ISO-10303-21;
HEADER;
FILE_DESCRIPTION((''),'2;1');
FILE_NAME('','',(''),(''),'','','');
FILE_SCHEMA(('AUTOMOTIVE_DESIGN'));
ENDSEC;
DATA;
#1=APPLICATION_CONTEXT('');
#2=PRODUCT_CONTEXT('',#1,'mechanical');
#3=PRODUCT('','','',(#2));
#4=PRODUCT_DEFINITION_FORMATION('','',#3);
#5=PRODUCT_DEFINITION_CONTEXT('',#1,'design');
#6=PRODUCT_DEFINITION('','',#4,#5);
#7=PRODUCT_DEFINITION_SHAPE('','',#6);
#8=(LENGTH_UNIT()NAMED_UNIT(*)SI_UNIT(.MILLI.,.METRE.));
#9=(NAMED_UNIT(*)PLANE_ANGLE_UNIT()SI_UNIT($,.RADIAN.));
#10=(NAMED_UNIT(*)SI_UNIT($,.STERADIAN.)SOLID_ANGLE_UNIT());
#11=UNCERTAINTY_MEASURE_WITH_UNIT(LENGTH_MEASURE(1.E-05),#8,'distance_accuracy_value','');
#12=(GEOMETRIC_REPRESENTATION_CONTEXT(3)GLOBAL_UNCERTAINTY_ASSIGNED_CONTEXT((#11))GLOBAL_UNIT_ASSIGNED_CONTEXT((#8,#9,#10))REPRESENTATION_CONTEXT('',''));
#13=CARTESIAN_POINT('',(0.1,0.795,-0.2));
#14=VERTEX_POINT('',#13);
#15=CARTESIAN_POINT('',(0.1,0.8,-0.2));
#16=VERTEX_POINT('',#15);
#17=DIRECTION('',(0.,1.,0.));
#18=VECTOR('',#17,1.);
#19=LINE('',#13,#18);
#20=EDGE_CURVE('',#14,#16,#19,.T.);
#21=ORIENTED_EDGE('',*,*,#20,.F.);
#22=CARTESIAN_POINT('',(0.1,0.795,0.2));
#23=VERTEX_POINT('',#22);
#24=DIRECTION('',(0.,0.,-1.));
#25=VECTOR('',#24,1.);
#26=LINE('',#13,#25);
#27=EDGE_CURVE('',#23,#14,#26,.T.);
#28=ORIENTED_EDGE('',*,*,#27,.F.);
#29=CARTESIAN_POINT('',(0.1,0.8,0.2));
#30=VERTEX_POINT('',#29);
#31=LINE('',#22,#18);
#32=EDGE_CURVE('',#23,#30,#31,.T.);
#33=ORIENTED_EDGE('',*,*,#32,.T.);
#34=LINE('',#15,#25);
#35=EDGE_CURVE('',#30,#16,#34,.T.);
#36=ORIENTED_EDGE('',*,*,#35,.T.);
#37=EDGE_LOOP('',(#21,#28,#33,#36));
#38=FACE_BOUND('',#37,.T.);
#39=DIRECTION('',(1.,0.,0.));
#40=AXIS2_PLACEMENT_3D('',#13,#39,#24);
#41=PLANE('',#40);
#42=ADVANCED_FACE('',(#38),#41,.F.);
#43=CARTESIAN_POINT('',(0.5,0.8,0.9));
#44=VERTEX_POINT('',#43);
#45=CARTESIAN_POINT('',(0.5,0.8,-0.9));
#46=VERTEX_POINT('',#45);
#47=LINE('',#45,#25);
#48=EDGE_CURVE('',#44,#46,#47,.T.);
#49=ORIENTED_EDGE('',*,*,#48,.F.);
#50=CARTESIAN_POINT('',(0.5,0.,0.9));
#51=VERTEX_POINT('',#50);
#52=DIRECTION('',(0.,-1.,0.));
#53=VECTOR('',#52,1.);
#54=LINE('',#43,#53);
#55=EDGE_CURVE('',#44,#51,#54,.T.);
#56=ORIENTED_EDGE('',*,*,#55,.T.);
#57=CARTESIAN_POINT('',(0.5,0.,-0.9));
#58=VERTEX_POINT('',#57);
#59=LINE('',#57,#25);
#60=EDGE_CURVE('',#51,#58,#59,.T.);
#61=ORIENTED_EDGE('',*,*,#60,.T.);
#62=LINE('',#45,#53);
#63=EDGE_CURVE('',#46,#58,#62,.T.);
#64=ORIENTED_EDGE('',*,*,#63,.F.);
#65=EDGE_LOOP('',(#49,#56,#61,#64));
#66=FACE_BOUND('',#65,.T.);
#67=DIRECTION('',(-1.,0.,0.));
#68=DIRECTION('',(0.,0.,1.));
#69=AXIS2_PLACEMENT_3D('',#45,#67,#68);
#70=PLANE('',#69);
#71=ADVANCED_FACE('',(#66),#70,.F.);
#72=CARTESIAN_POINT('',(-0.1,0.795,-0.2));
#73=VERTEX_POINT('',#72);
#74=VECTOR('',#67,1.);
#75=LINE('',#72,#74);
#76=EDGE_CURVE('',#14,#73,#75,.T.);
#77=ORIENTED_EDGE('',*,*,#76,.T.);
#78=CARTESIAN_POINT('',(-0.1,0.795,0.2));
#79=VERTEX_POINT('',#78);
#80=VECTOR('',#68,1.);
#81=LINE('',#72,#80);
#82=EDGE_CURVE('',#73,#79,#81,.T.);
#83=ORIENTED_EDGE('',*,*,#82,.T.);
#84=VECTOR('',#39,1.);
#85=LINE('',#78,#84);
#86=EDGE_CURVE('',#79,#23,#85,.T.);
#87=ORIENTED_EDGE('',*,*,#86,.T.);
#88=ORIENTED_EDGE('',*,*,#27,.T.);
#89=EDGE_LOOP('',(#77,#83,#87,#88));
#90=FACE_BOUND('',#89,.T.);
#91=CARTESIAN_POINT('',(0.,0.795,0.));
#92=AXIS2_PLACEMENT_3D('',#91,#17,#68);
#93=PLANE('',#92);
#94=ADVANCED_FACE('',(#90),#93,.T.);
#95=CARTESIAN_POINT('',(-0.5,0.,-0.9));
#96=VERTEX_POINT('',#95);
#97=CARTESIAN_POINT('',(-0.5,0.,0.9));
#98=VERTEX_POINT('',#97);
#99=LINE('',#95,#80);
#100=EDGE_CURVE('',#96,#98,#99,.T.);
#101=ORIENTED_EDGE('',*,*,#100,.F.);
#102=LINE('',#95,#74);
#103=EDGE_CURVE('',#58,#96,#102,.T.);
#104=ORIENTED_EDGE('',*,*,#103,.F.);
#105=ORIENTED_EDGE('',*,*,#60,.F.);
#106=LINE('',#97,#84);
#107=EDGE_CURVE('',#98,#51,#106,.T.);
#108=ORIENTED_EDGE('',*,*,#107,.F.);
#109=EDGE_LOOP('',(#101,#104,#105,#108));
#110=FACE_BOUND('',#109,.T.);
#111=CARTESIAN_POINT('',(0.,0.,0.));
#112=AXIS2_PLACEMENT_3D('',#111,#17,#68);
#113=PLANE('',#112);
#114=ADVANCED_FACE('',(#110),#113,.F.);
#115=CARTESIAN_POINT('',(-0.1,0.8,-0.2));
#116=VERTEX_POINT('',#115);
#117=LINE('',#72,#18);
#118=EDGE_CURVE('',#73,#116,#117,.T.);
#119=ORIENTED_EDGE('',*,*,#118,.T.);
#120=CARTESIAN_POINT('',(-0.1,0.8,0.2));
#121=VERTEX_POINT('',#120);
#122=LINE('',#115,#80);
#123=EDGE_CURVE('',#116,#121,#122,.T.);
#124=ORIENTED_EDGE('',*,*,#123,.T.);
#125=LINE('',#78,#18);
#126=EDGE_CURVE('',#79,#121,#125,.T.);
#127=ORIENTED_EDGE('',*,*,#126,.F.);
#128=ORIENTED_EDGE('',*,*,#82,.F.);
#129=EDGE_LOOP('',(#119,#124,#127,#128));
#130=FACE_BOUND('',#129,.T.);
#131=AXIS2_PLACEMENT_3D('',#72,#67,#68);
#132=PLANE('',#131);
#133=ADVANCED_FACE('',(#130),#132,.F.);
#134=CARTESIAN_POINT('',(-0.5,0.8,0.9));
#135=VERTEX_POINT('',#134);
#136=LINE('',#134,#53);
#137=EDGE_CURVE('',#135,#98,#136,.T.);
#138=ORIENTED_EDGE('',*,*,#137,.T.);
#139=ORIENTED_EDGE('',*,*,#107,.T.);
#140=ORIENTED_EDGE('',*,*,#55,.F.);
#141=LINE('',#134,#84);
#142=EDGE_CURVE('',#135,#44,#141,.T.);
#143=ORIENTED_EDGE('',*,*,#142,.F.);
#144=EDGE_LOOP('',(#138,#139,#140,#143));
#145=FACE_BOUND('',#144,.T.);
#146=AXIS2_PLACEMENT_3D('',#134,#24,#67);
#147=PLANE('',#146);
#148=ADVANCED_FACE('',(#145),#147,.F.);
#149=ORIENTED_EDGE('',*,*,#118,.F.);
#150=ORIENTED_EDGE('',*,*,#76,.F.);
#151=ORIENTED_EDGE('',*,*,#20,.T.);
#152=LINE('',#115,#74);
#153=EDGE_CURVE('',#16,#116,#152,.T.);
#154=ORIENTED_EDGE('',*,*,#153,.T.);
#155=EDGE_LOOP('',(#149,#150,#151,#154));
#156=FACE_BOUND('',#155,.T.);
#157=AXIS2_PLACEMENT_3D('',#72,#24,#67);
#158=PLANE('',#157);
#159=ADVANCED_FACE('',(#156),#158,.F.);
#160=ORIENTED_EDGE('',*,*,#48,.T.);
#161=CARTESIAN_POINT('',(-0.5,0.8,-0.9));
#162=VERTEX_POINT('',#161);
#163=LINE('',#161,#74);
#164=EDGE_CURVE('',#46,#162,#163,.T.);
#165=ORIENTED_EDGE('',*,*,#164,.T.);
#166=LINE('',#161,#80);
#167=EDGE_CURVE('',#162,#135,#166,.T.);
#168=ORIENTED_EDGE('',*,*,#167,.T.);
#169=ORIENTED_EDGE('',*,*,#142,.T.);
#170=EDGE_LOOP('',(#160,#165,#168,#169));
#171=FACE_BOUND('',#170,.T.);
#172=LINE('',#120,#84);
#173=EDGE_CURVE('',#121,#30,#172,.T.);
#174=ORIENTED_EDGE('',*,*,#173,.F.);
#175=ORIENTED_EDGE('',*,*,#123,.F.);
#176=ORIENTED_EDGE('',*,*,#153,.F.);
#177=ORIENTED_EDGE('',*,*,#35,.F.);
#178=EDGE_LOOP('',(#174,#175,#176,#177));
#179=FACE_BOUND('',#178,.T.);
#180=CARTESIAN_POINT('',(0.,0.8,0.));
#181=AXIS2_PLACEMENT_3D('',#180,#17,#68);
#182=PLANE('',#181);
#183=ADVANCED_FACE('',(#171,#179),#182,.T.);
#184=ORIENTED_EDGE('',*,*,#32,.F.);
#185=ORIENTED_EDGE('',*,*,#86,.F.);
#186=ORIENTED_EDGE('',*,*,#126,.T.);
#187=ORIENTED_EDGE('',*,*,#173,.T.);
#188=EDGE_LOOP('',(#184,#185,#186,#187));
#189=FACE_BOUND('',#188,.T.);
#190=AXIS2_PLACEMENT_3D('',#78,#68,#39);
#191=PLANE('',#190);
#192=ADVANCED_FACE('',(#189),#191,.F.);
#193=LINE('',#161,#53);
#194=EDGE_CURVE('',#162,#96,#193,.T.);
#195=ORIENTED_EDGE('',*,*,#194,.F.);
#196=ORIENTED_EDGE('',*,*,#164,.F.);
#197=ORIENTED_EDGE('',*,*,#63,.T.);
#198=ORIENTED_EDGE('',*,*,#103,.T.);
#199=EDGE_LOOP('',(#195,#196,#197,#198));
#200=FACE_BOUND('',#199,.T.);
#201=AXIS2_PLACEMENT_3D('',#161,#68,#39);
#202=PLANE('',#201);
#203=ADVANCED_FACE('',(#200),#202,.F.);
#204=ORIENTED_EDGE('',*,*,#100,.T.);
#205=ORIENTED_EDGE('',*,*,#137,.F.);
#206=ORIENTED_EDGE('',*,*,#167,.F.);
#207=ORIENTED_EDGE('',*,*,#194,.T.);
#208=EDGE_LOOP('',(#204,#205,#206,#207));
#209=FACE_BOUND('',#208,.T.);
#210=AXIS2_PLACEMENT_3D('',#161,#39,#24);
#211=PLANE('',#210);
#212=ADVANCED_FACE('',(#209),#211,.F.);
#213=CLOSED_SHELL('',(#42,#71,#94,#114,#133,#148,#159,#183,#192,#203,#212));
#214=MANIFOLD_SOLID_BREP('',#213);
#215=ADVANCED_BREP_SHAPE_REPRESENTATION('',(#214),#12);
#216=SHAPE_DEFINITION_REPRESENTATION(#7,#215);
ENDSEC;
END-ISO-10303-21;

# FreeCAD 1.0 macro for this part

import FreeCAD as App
import Part
import Sketcher


def add_polygon(sketch, points):
    """Adds a closed chain of lines whose ends are joined by coincident constraints."""
    first, n = sketch.GeometryCount, len(points)
    for a, b in zip(points, points[1:] + points[:1]):
        sketch.addGeometry(Part.LineSegment(App.Vector(*a, 0), App.Vector(*b, 0)), False)
    for i in range(n):
        sketch.addConstraint(Sketcher.Constraint("Coincident", first + i, 2, first + (i + 1) % n, 1))

doc = App.newDocument("Part")
params = doc.addObject("Spreadsheet::Sheet", "Params")
for row, (alias, value) in enumerate([
    ("sketch1_width", "1 mm"),
    ("sketch1_height", "1.8 mm"),
    ("pad1_length", "0.8 mm"),
    ("sketch2_width", "0.2 mm"),
    ("sketch2_height", "0.4 mm"),
    ("pocket1_length", "0.005 mm"),
], start=1):
    params.set(f"A{row}", alias)
    params.set(f"B{row}", "=" + value)
    params.setAlias(f"B{row}", alias)

body = doc.addObject("PartDesign::Body", "Body")

sketch1 = body.newObject("Sketcher::SketchObject", "Sketch")
sketch1.AttachmentSupport = (doc.getObject("XZ_Plane"), [""])
sketch1.MapMode = "FlatFace"
add_polygon(sketch1, [(-0.5, -0.9), (-0.5, 0.9), (0.5, 0.9), (0.5, -0.9)])
sketch1.addConstraint(Sketcher.Constraint("Vertical", 0))
sketch1.addConstraint(Sketcher.Constraint("Horizontal", 1))
sketch1.addConstraint(Sketcher.Constraint("Vertical", 2))
sketch1.addConstraint(Sketcher.Constraint("Horizontal", 3))
sketch1.addConstraint(Sketcher.Constraint("Symmetric", 0, 2, 2, 2, -1, 1))
sketch1.addConstraint(Sketcher.Constraint("DistanceX", 1, 1, 1, 2, 1.0))
sketch1.addConstraint(Sketcher.Constraint("DistanceY", 0, 1, 0, 2, 1.8))
sketch1.setExpression("Constraints[9]", "Params.sketch1_width")
sketch1.setExpression("Constraints[10]", "Params.sketch1_height")
pad1 = body.newObject("PartDesign::Pad", "Pad")
pad1.Profile = sketch1
pad1.setExpression("Length", "Params.pad1_length")
pad1.Reversed = True

sketch2 = body.newObject("Sketcher::SketchObject", "Sketch001")
sketch2.AttachmentSupport = (doc.getObject("XZ_Plane"), [""])
sketch2.MapMode = "FlatFace"
sketch2.AttachmentOffset = App.Placement(App.Vector(0, 0, -0.8), App.Rotation())
add_polygon(sketch2, [(-0.1, -0.2), (-0.1, 0.2), (0.1, 0.2), (0.1, -0.2)])
sketch2.addConstraint(Sketcher.Constraint("Vertical", 0))
sketch2.addConstraint(Sketcher.Constraint("Horizontal", 1))
sketch2.addConstraint(Sketcher.Constraint("Vertical", 2))
sketch2.addConstraint(Sketcher.Constraint("Horizontal", 3))
sketch2.addConstraint(Sketcher.Constraint("Symmetric", 0, 2, 2, 2, -1, 1))
sketch2.addConstraint(Sketcher.Constraint("DistanceX", 1, 1, 1, 2, 0.2))
sketch2.addConstraint(Sketcher.Constraint("DistanceY", 0, 1, 0, 2, 0.4))
sketch2.setExpression("Constraints[9]", "Params.sketch2_width")
sketch2.setExpression("Constraints[10]", "Params.sketch2_height")
pocket1 = body.newObject("PartDesign::Pocket", "Pocket")
pocket1.Profile = sketch2
pocket1.setExpression("Length", "Params.pocket1_length")
pocket1.Reversed = True

doc.recompute()
